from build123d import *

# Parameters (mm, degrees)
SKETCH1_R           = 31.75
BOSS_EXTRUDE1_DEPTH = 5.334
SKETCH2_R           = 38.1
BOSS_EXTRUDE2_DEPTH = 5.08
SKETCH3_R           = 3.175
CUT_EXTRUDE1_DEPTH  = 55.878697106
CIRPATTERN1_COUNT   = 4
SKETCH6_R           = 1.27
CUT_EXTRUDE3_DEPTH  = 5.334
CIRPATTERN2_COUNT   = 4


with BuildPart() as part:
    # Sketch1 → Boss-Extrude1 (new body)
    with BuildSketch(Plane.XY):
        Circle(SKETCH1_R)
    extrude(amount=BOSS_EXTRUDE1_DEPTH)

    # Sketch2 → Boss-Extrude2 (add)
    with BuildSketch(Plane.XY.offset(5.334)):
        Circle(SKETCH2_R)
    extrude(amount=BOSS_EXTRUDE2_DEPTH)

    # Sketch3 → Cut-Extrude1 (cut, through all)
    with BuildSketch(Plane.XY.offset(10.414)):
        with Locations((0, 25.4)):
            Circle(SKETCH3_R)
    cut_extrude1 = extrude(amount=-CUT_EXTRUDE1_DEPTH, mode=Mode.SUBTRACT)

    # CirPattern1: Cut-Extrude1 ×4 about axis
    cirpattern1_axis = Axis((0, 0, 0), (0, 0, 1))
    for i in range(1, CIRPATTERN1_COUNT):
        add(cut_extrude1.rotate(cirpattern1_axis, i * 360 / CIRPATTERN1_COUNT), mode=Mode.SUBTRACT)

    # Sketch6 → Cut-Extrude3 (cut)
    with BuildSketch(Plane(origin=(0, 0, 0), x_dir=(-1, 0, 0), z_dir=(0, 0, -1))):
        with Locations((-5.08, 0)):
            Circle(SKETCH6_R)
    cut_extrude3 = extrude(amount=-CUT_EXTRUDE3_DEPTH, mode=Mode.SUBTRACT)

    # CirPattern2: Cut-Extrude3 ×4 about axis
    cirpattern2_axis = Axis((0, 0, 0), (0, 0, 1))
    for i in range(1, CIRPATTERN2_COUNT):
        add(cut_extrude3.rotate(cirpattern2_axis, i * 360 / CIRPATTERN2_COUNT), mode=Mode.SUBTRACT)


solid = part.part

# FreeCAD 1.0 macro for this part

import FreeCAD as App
import Part
import Sketcher
from FreeCAD import Vector
Q = App.Units.Quantity

doc = App.newDocument("Part")
body = doc.addObject("PartDesign::Body", "Body")

sketch1 = body.newObject("Sketcher::SketchObject", "Sketch")
sketch1.AttachmentSupport = (doc.getObject("XY_Plane"), [""])
sketch1.MapMode = "FlatFace"
sketch1.addGeometry(Part.Circle(Vector(0, 0, 0), Vector(0, 0, 1), 32), False)
sketch1.addConstraint([
    Sketcher.Constraint("Coincident", 0, 3, -1, 1),
    Sketcher.Constraint("Diameter", 0, Q("2.5 in")),
])
pad1 = body.newObject("PartDesign::Pad", "Pad")
pad1.Profile = sketch1
pad1.Length = Q("0.21 in")

sketch2 = body.newObject("Sketcher::SketchObject", "Sketch001")
sketch2.AttachmentSupport = (doc.getObject("XY_Plane"), [""])
sketch2.MapMode = "FlatFace"
sketch2.AttachmentOffset = App.Placement(Vector(0, 0, 0.21 * 25.4), App.Rotation())
sketch2.addGeometry(Part.Circle(Vector(0, 0, 0), Vector(0, 0, 1), 38), False)
sketch2.addConstraint([
    Sketcher.Constraint("Coincident", 0, 3, -1, 1),
    Sketcher.Constraint("Diameter", 0, Q("3 in")),
])
pad2 = body.newObject("PartDesign::Pad", "Pad001")
pad2.Profile = sketch2
pad2.Length = Q("0.2 in")

sketch3 = body.newObject("Sketcher::SketchObject", "Sketch002")
sketch3.AttachmentSupport = (doc.getObject("XY_Plane"), [""])
sketch3.MapMode = "FlatFace"
sketch3.AttachmentOffset = App.Placement(Vector(0, 0, 0.41 * 25.4), App.Rotation())
sketch3.addGeometry(Part.Circle(Vector(0, 25.4, 0), Vector(0, 0, 1), 3.2), False)
sketch3.addConstraint([
    Sketcher.Constraint("PointOnObject", 0, 3, -2),
    Sketcher.Constraint("Diameter", 0, Q("0.25 in")),
    Sketcher.Constraint("DistanceY", -1, 1, 0, 3, Q("1 in")),
])
pocket1 = body.newObject("PartDesign::Pocket", "Pocket")
pocket1.Profile = sketch3
pocket1.Type = "ThroughAll"
doc.recompute()

polarpattern = body.newObject("PartDesign::PolarPattern", "PolarPattern")
polarpattern.Originals = [pocket1]
polarpattern.Axis = (doc.getObject("Z_Axis"), [""])
polarpattern.Angle = 360
polarpattern.Occurrences = 4
body.Tip = polarpattern

sketch4 = body.newObject("Sketcher::SketchObject", "Sketch003")
sketch4.AttachmentSupport = (doc.getObject("XY_Plane"), [""])
sketch4.MapMode = "FlatFace"
sketch4.addGeometry(Part.Circle(Vector(5.1, 0, 0), Vector(0, 0, 1), 1.3), False)
sketch4.addConstraint([
    Sketcher.Constraint("PointOnObject", 0, 3, -1),
    Sketcher.Constraint("Diameter", 0, Q("0.1 in")),
    Sketcher.Constraint("DistanceX", -1, 1, 0, 3, Q("0.2 in")),
])
pocket2 = body.newObject("PartDesign::Pocket", "Pocket001")
pocket2.Profile = sketch4
pocket2.Length = Q("0.21 in")
pocket2.Reversed = True
doc.recompute()

polarpattern2 = body.newObject("PartDesign::PolarPattern", "PolarPattern001")
polarpattern2.Originals = [pocket2]
polarpattern2.Axis = (doc.getObject("Z_Axis"), [""])
polarpattern2.Angle = 360
polarpattern2.Occurrences = 4
body.Tip = polarpattern2

doc.recompute()
